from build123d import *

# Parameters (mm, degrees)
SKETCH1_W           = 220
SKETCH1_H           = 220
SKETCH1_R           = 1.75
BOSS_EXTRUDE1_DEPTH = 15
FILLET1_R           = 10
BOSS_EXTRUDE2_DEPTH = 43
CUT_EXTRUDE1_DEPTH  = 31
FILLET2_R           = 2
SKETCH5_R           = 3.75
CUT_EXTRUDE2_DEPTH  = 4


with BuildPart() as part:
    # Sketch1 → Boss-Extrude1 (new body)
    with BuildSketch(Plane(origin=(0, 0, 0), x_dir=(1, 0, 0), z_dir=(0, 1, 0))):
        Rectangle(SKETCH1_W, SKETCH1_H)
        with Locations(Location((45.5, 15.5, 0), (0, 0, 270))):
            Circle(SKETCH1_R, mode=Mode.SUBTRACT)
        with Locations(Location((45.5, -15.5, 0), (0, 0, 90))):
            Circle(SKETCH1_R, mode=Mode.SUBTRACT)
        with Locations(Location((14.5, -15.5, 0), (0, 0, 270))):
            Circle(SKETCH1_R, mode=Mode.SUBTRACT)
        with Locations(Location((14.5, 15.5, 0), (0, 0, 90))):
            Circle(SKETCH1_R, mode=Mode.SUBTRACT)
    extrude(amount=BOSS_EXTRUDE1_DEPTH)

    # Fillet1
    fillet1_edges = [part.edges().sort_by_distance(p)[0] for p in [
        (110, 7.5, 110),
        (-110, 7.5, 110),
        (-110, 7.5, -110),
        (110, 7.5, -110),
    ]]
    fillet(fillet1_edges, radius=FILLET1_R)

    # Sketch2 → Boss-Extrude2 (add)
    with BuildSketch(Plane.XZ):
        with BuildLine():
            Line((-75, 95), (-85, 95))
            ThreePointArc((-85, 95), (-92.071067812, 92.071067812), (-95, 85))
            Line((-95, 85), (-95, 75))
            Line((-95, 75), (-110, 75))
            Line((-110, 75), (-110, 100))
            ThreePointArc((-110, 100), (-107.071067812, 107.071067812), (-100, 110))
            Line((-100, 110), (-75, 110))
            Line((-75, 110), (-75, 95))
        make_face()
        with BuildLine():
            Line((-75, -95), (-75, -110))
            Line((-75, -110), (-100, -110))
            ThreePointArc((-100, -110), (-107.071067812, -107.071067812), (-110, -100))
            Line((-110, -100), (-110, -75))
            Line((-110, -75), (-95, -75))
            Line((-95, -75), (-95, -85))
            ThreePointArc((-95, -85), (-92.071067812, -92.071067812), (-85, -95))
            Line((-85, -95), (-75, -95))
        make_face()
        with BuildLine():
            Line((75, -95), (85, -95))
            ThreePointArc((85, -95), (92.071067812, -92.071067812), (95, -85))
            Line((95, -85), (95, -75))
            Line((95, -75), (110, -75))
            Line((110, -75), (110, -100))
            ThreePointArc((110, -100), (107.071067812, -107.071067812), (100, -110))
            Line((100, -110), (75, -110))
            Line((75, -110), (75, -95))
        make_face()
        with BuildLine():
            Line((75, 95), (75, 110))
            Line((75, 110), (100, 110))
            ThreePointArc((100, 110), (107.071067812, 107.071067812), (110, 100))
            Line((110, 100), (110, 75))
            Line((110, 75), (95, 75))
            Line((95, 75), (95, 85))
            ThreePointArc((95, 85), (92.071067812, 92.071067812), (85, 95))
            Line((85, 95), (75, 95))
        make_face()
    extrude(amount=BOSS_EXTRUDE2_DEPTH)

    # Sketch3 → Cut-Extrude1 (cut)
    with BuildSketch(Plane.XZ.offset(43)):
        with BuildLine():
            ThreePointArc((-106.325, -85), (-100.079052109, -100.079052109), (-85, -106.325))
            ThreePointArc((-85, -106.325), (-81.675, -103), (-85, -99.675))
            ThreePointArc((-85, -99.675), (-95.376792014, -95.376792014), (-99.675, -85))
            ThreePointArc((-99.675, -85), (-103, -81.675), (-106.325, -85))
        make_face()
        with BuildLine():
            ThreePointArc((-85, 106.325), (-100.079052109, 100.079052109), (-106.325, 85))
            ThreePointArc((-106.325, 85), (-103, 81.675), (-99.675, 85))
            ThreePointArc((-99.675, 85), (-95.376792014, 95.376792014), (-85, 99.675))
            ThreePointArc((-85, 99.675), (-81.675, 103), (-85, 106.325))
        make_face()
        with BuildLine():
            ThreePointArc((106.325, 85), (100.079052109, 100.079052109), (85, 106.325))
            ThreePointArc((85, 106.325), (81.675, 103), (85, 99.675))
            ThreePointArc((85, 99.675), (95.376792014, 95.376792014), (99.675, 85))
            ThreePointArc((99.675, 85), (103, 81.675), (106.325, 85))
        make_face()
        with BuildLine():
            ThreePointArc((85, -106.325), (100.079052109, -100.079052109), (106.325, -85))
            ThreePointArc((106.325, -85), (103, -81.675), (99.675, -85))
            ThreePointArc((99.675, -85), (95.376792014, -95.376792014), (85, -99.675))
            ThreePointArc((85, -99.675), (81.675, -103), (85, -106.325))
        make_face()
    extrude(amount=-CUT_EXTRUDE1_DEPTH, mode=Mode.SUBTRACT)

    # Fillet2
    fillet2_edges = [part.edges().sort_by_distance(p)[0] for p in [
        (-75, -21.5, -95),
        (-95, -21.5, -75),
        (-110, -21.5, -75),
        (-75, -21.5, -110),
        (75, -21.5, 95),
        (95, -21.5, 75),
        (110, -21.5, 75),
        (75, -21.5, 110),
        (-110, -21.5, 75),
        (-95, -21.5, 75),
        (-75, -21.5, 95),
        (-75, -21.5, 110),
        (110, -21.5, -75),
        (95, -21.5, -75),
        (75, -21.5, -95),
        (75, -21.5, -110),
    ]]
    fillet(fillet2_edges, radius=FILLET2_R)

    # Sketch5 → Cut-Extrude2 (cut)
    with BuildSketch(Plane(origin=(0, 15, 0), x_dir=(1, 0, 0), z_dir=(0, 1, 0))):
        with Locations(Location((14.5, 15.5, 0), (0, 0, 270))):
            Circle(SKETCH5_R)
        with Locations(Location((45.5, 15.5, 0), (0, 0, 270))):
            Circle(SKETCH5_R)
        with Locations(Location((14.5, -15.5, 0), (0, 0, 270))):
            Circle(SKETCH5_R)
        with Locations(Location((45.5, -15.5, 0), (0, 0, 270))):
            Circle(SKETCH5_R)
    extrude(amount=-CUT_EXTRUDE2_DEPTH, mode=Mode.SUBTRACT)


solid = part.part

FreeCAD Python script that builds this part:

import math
import FreeCAD as App
import Part
import Sketcher
Q = App.Units.Quantity


def edges_at(feature, points):
    """Names of the edges that pass closest to the given points."""
    edges = feature.Shape.Edges
    near = lambda p: min(range(len(edges)), key=lambda i: edges[i].distToShape(Part.Vertex(*p))[0])
    return sorted({f"Edge{near(p) + 1}" for p in points})

doc = App.newDocument("Part")
body = doc.addObject("PartDesign::Body", "Body")

# Sketch on XZ plane
sketch1 = doc.addObject("Sketcher::SketchObject", "Sketch")
body.addObject(sketch1)
sketch1.AttachmentSupport = (doc.XZ_Plane, [""])
sketch1.MapMode = "FlatFace"
sketch1.addGeometry(Part.LineSegment(App.Vector(-110, -110, 0), App.Vector(-110, 110, 0)), False)
sketch1.addGeometry(Part.LineSegment(App.Vector(-110, 110, 0), App.Vector(110, 110, 0)), False)
sketch1.addGeometry(Part.LineSegment(App.Vector(110, 110, 0), App.Vector(110, -110, 0)), False)
sketch1.addGeometry(Part.LineSegment(App.Vector(110, -110, 0), App.Vector(-110, -110, 0)), False)
sketch1.addGeometry(Part.Circle(App.Vector(14.5, 15.5, 0), App.Vector(0, 0, 1), 1.8), False)
sketch1.addGeometry(Part.Circle(App.Vector(45.5, 15.5, 0), App.Vector(0, 0, 1), 1.8), False)
sketch1.addGeometry(Part.Circle(App.Vector(14.5, -15.5, 0), App.Vector(0, 0, 1), 1.8), False)
sketch1.addGeometry(Part.Circle(App.Vector(45.5, -15.5, 0), App.Vector(0, 0, 1), 1.8), False)
sketch1.addConstraint(Sketcher.Constraint("Coincident", 0, 2, 1, 1))
sketch1.addConstraint(Sketcher.Constraint("Coincident", 1, 2, 2, 1))
sketch1.addConstraint(Sketcher.Constraint("Coincident", 2, 2, 3, 1))
sketch1.addConstraint(Sketcher.Constraint("Coincident", 3, 2, 0, 1))
sketch1.addConstraint(Sketcher.Constraint("Vertical", 0))
sketch1.addConstraint(Sketcher.Constraint("Horizontal", 1))
sketch1.addConstraint(Sketcher.Constraint("Vertical", 2))
sketch1.addConstraint(Sketcher.Constraint("Horizontal", 3))
sketch1.addConstraint(Sketcher.Constraint("Equal", 4, 5))
sketch1.addConstraint(Sketcher.Constraint("Equal", 5, 6))
sketch1.addConstraint(Sketcher.Constraint("Equal", 6, 7))
sketch1.addConstraint(Sketcher.Constraint("Symmetric", 0, 2, 2, 2, -1, 1))
sketch1.addConstraint(Sketcher.Constraint("Symmetric", 4, 3, 6, 3, -1))
sketch1.addConstraint(Sketcher.Constraint("Symmetric", 5, 3, 7, 3, -1))
sketch1.addConstraint(Sketcher.Constraint("Horizontal", 4, 3, 5, 3))
sketch1.addConstraint(Sketcher.Constraint("Equal", 3, 0))
sketch1.addConstraint(Sketcher.Constraint("Diameter", 4, Q("3.5 mm")))
sketch1.addConstraint(Sketcher.Constraint("DistanceX", 1, 1, 1, 2, Q("220 mm")))
sketch1.addConstraint(Sketcher.Constraint("DistanceX", 4, 3, 5, 3, Q("31 mm")))
sketch1.addConstraint(Sketcher.Constraint("DistanceY", 6, 3, 4, 3, Q("31 mm")))
sketch1.addConstraint(Sketcher.Constraint("DistanceX", -1, 1, 4, 3, Q("14.5 mm")))
pad1 = doc.addObject("PartDesign::Pad", "Pad")
body.addObject(pad1)
pad1.Profile = sketch1
pad1.Length = 15
pad1.Reversed = True
doc.recompute()

fillet = doc.addObject("PartDesign::Fillet", "Fillet")
body.addObject(fillet)
fillet.Base = (pad1, edges_at(pad1, [
    (110, 7.5, 110),
    (-110, 7.5, 110),
    (-110, 7.5, -110),
    (110, 7.5, -110),
]))
fillet.Radius = 10

# Sketch on XZ plane
sketch2 = doc.addObject("Sketcher::SketchObject", "Sketch001")
body.addObject(sketch2)
sketch2.AttachmentSupport = (doc.XZ_Plane, [""])
sketch2.MapMode = "FlatFace"
sketch2.addGeometry(Part.LineSegment(App.Vector(-85, 95, 0), App.Vector(-75, 95, 0)), False)
sketch2.addGeometry(Part.LineSegment(App.Vector(-75, 95, 0), App.Vector(-75, 110, 0)), False)
sketch2.addGeometry(Part.LineSegment(App.Vector(-75, 110, 0), App.Vector(-100, 110, 0)), False)
sketch2.addGeometry(Part.ArcOfCircle(Part.Circle(App.Vector(-100, 100, 0), App.Vector(0, 0, 1), 10), math.radians(90), math.radians(180)), False)
sketch2.addGeometry(Part.LineSegment(App.Vector(-110, 100, 0), App.Vector(-110, 75, 0)), False)
sketch2.addGeometry(Part.LineSegment(App.Vector(-110, 75, 0), App.Vector(-95, 75, 0)), False)
sketch2.addGeometry(Part.LineSegment(App.Vector(-95, 75, 0), App.Vector(-95, 85, 0)), False)
sketch2.addGeometry(Part.ArcOfCircle(Part.Circle(App.Vector(-85, 85, 0), App.Vector(0, 0, 1), 10), math.radians(90), math.radians(180)), False)
sketch2.addGeometry(Part.LineSegment(App.Vector(-75, -110, 0), App.Vector(-75, -95, 0)), False)
sketch2.addGeometry(Part.LineSegment(App.Vector(-75, -95, 0), App.Vector(-85, -95, 0)), False)
sketch2.addGeometry(Part.ArcOfCircle(Part.Circle(App.Vector(-85, -85, 0), App.Vector(0, 0, 1), 10), math.radians(180), math.radians(270)), False)
sketch2.addGeometry(Part.LineSegment(App.Vector(-95, -85, 0), App.Vector(-95, -75, 0)), False)
sketch2.addGeometry(Part.LineSegment(App.Vector(-95, -75, 0), App.Vector(-110, -75, 0)), False)
sketch2.addGeometry(Part.LineSegment(App.Vector(-110, -75, 0), App.Vector(-110, -100, 0)), False)
sketch2.addGeometry(Part.ArcOfCircle(Part.Circle(App.Vector(-100, -100, 0), App.Vector(0, 0, 1), 10), math.radians(180), math.radians(270)), False)
sketch2.addGeometry(Part.LineSegment(App.Vector(-100, -110, 0), App.Vector(-75, -110, 0)), False)
sketch2.addGeometry(Part.LineSegment(App.Vector(85, -95, 0), App.Vector(75, -95, 0)), False)
sketch2.addGeometry(Part.LineSegment(App.Vector(75, -95, 0), App.Vector(75, -110, 0)), False)
sketch2.addGeometry(Part.LineSegment(App.Vector(75, -110, 0), App.Vector(100, -110, 0)), False)
sketch2.addGeometry(Part.ArcOfCircle(Part.Circle(App.Vector(100, -100, 0), App.Vector(0, 0, 1), 10), math.radians(-90), math.radians(0)), False)
sketch2.addGeometry(Part.LineSegment(App.Vector(110, -100, 0), App.Vector(110, -75, 0)), False)
sketch2.addGeometry(Part.LineSegment(App.Vector(110, -75, 0), App.Vector(95, -75, 0)), False)
sketch2.addGeometry(Part.LineSegment(App.Vector(95, -75, 0), App.Vector(95, -85, 0)), False)
sketch2.addGeometry(Part.ArcOfCircle(Part.Circle(App.Vector(85, -85, 0), App.Vector(0, 0, 1), 10), math.radians(-90), math.radians(0)), False)
sketch2.addGeometry(Part.LineSegment(App.Vector(75, 110, 0), App.Vector(75, 95, 0)), False)
sketch2.addGeometry(Part.LineSegment(App.Vector(75, 95, 0), App.Vector(85, 95, 0)), False)
sketch2.addGeometry(Part.ArcOfCircle(Part.Circle(App.Vector(85, 85, 0), App.Vector(0, 0, 1), 10), math.radians(0), math.radians(90)), False)
sketch2.addGeometry(Part.LineSegment(App.Vector(95, 85, 0), App.Vector(95, 75, 0)), False)
sketch2.addGeometry(Part.LineSegment(App.Vector(95, 75, 0), App.Vector(110, 75, 0)), False)
sketch2.addGeometry(Part.LineSegment(App.Vector(110, 75, 0), App.Vector(110, 100, 0)), False)
sketch2.addGeometry(Part.ArcOfCircle(Part.Circle(App.Vector(100, 100, 0), App.Vector(0, 0, 1), 10), math.radians(0), math.radians(90)), False)
sketch2.addGeometry(Part.LineSegment(App.Vector(100, 110, 0), App.Vector(75, 110, 0)), False)
sketch2.addConstraint(Sketcher.Constraint("Coincident", 0, 2, 1, 1))
sketch2.addConstraint(Sketcher.Constraint("Coincident", 1, 2, 2, 1))
sketch2.addConstraint(Sketcher.Constraint("Tangent", 2, 2, 3, 1))
sketch2.addConstraint(Sketcher.Constraint("Tangent", 3, 2, 4, 1))
sketch2.addConstraint(Sketcher.Constraint("Coincident", 4, 2, 5, 1))
sketch2.addConstraint(Sketcher.Constraint("Coincident", 5, 2, 6, 1))
sketch2.addConstraint(Sketcher.Constraint("Tangent", 6, 2, 7, 2))
sketch2.addConstraint(Sketcher.Constraint("Tangent", 7, 1, 0, 1))
sketch2.addConstraint(Sketcher.Constraint("Coincident", 8, 2, 9, 1))
sketch2.addConstraint(Sketcher.Constraint("Tangent", 9, 2, 10, 2))
sketch2.addConstraint(Sketcher.Constraint("Tangent", 10, 1, 11, 1))
sketch2.addConstraint(Sketcher.Constraint("Coincident", 11, 2, 12, 1))
sketch2.addConstraint(Sketcher.Constraint("Coincident", 12, 2, 13, 1))
sketch2.addConstraint(Sketcher.Constraint("Tangent", 13, 2, 14, 1))
sketch2.addConstraint(Sketcher.Constraint("Tangent", 14, 2, 15, 1))
sketch2.addConstraint(Sketcher.Constraint("Coincident", 15, 2, 8, 1))
sketch2.addConstraint(Sketcher.Constraint("Coincident", 16, 2, 17, 1))
sketch2.addConstraint(Sketcher.Constraint("Coincident", 17, 2, 18, 1))
sketch2.addConstraint(Sketcher.Constraint("Tangent", 18, 2, 19, 1))
sketch2.addConstraint(Sketcher.Constraint("Tangent", 19, 2, 20, 1))
sketch2.addConstraint(Sketcher.Constraint("Coincident", 20, 2, 21, 1))
sketch2.addConstraint(Sketcher.Constraint("Coincident", 21, 2, 22, 1))
sketch2.addConstraint(Sketcher.Constraint("Tangent", 22, 2, 23, 2))
sketch2.addConstraint(Sketcher.Constraint("Tangent", 23, 1, 16, 1))
sketch2.addConstraint(Sketcher.Constraint("Coincident", 24, 2, 25, 1))
sketch2.addConstraint(Sketcher.Constraint("Tangent", 25, 2, 26, 2))
sketch2.addConstraint(Sketcher.Constraint("Tangent", 26, 1, 27, 1))
sketch2.addConstraint(Sketcher.Constraint("Coincident", 27, 2, 28, 1))
sketch2.addConstraint(Sketcher.Constraint("Coincident", 28, 2, 29, 1))
sketch2.addConstraint(Sketcher.Constraint("Tangent", 29, 2, 30, 1))
sketch2.addConstraint(Sketcher.Constraint("Tangent", 30, 2, 31, 1))
sketch2.addConstraint(Sketcher.Constraint("Coincident", 31, 2, 24, 1))
sketch2.addConstraint(Sketcher.Constraint("Horizontal", 0))
sketch2.addConstraint(Sketcher.Constraint("Vertical", 1))
sketch2.addConstraint(Sketcher.Constraint("Horizontal", 2))
sketch2.addConstraint(Sketcher.Constraint("Vertical", 4))
sketch2.addConstraint(Sketcher.Constraint("Horizontal", 5))
sketch2.addConstraint(Sketcher.Constraint("Vertical", 6))
sketch2.addConstraint(Sketcher.Constraint("Vertical", 8))
sketch2.addConstraint(Sketcher.Constraint("Horizontal", 9))
sketch2.addConstraint(Sketcher.Constraint("Vertical", 11))
sketch2.addConstraint(Sketcher.Constraint("Horizontal", 12))
sketch2.addConstraint(Sketcher.Constraint("Vertical", 13))
sketch2.addConstraint(Sketcher.Constraint("Horizontal", 15))
sketch2.addConstraint(Sketcher.Constraint("Horizontal", 16))
sketch2.addConstraint(Sketcher.Constraint("Vertical", 17))
sketch2.addConstraint(Sketcher.Constraint("Horizontal", 18))
sketch2.addConstraint(Sketcher.Constraint("Vertical", 20))
sketch2.addConstraint(Sketcher.Constraint("Horizontal", 21))
sketch2.addConstraint(Sketcher.Constraint("Vertical", 22))
sketch2.addConstraint(Sketcher.Constraint("Vertical", 24))
sketch2.addConstraint(Sketcher.Constraint("Horizontal", 25))
sketch2.addConstraint(Sketcher.Constraint("Vertical", 27))
sketch2.addConstraint(Sketcher.Constraint("Horizontal", 28))
sketch2.addConstraint(Sketcher.Constraint("Vertical", 29))
sketch2.addConstraint(Sketcher.Constraint("Horizontal", 31))
sketch2.addConstraint(Sketcher.Constraint("Equal", 3, 7))
sketch2.addConstraint(Sketcher.Constraint("Equal", 7, 10))
sketch2.addConstraint(Sketcher.Constraint("Equal", 10, 14))
sketch2.addConstraint(Sketcher.Constraint("Equal", 14, 19))
sketch2.addConstraint(Sketcher.Constraint("Equal", 19, 23))
sketch2.addConstraint(Sketcher.Constraint("Equal", 23, 26))
sketch2.addConstraint(Sketcher.Constraint("Equal", 26, 30))
sketch2.addConstraint(Sketcher.Constraint("Symmetric", 3, 3, 19, 3, -1, 1))
sketch2.addConstraint(Sketcher.Constraint("Symmetric", 7, 3, 23, 3, -1, 1))
sketch2.addConstraint(Sketcher.Constraint("Symmetric", 10, 3, 26, 3, -1, 1))
sketch2.addConstraint(Sketcher.Constraint("Symmetric", 14, 3, 30, 3, -1, 1))
sketch2.addConstraint(Sketcher.Constraint("Symmetric", 14, 3, 19, 3, -2))
sketch2.addConstraint(Sketcher.Constraint("Symmetric", 10, 3, 23, 3, -2))
sketch2.addConstraint(Sketcher.Constraint("Horizontal", 12, 2, 20, 2))
sketch2.addConstraint(Sketcher.Constraint("Horizontal", 5, 2, 27, 2))
sketch2.addConstraint(Sketcher.Constraint("Vertical", 1, 2, 8, 2))
sketch2.addConstraint(Sketcher.Constraint("Vertical", 17, 2, 24, 2))
sketch2.addConstraint(Sketcher.Constraint("Equal", 9, 16))
sketch2.addConstraint(Sketcher.Constraint("Equal", 28, 1))
sketch2.addConstraint(Sketcher.Constraint("Equal", 31, 4))
sketch2.addConstraint(Sketcher.Constraint("Equal", 6, 11))
sketch2.addConstraint(Sketcher.Constraint("Radius", 3, Q("10 mm")))
sketch2.addConstraint(Sketcher.Constraint("DistanceX", 0, 1, 0, 2, Q("10 mm")))
sketch2.addConstraint(Sketcher.Constraint("DistanceX", 2, 2, 2, 1, Q("25 mm")))
sketch2.addConstraint(Sketcher.Constraint("DistanceX", 3, 3, -1, 1, Q("100 mm")))
sketch2.addConstraint(Sketcher.Constraint("DistanceY", -1, 1, 3, 3, Q("100 mm")))
pad2 = doc.addObject("PartDesign::Pad", "Pad001")
body.addObject(pad2)
pad2.Profile = sketch2
pad2.Length = 43

# Sketch on XZ plane
sketch3 = doc.addObject("Sketcher::SketchObject", "Sketch002")
body.addObject(sketch3)
sketch3.AttachmentSupport = (doc.XZ_Plane, [""])
sketch3.MapMode = "FlatFace"
sketch3.AttachmentOffset = App.Placement(App.Vector(0, 0, 43), App.Rotation())
sketch3.addGeometry(Part.ArcOfCircle(Part.Circle(App.Vector(-85, -85, 0), App.Vector(0, 0, 1), 21.3), math.radians(180), math.radians(270)), False)
sketch3.addGeometry(Part.ArcOfCircle(Part.Circle(App.Vector(-85, -103, 0), App.Vector(0, 0, 1), 3.3), math.radians(-90), math.radians(90)), False)
sketch3.addGeometry(Part.ArcOfCircle(Part.Circle(App.Vector(-85, -85, 0), App.Vector(0, 0, 1), 14.7), math.radians(180), math.radians(270)), False)
sketch3.addGeometry(Part.ArcOfCircle(Part.Circle(App.Vector(-103, -85, 0), App.Vector(0, 0, 1), 3.3), math.radians(0), math.radians(180)), False)
sketch3.addGeometry(Part.ArcOfCircle(Part.Circle(App.Vector(-85, 85, 0), App.Vector(0, 0, 1), 21.3), math.radians(90), math.radians(180)), False)
sketch3.addGeometry(Part.ArcOfCircle(Part.Circle(App.Vector(-103, 85, 0), App.Vector(0, 0, 1), 3.3), math.radians(180), math.radians(360)), False)
sketch3.addGeometry(Part.ArcOfCircle(Part.Circle(App.Vector(-85, 85, 0), App.Vector(0, 0, 1), 14.7), math.radians(90), math.radians(180)), False)
sketch3.addGeometry(Part.ArcOfCircle(Part.Circle(App.Vector(-85, 103, 0), App.Vector(0, 0, 1), 3.3), math.radians(-90), math.radians(90)), False)
sketch3.addGeometry(Part.ArcOfCircle(Part.Circle(App.Vector(85, 85, 0), App.Vector(0, 0, 1), 21.3), math.radians(0), math.radians(90)), False)
sketch3.addGeometry(Part.ArcOfCircle(Part.Circle(App.Vector(85, 103, 0), App.Vector(0, 0, 1), 3.3), math.radians(90), math.radians(270)), False)
sketch3.addGeometry(Part.ArcOfCircle(Part.Circle(App.Vector(85, 85, 0), App.Vector(0, 0, 1), 14.7), math.radians(0), math.radians(90)), False)
sketch3.addGeometry(Part.ArcOfCircle(Part.Circle(App.Vector(103, 85, 0), App.Vector(0, 0, 1), 3.3), math.radians(180), math.radians(360)), False)
sketch3.addGeometry(Part.ArcOfCircle(Part.Circle(App.Vector(85, -85, 0), App.Vector(0, 0, 1), 21.3), math.radians(-90), math.radians(0)), False)
sketch3.addGeometry(Part.ArcOfCircle(Part.Circle(App.Vector(103, -85, 0), App.Vector(0, 0, 1), 3.3), math.radians(0), math.radians(180)), False)
sketch3.addGeometry(Part.ArcOfCircle(Part.Circle(App.Vector(85, -85, 0), App.Vector(0, 0, 1), 14.7), math.radians(-90), math.radians(0)), False)
sketch3.addGeometry(Part.ArcOfCircle(Part.Circle(App.Vector(85, -103, 0), App.Vector(0, 0, 1), 3.3), math.radians(90), math.radians(270)), False)
sketch3.addConstraint(Sketcher.Constraint("Tangent", 0, 2, 1, 1))
sketch3.addConstraint(Sketcher.Constraint("Tangent", 1, 2, 2, 2))
sketch3.addConstraint(Sketcher.Constraint("Tangent", 2, 1, 3, 1))
sketch3.addConstraint(Sketcher.Constraint("Tangent", 3, 2, 0, 1))
sketch3.addConstraint(Sketcher.Constraint("Tangent", 4, 2, 5, 1))
sketch3.addConstraint(Sketcher.Constraint("Tangent", 5, 2, 6, 2))
sketch3.addConstraint(Sketcher.Constraint("Tangent", 6, 1, 7, 1))
sketch3.addConstraint(Sketcher.Constraint("Tangent", 7, 2, 4, 1))
sketch3.addConstraint(Sketcher.Constraint("Tangent", 8, 2, 9, 1))
sketch3.addConstraint(Sketcher.Constraint("Tangent", 9, 2, 10, 2))
sketch3.addConstraint(Sketcher.Constraint("Tangent", 10, 1, 11, 1))
sketch3.addConstraint(Sketcher.Constraint("Tangent", 11, 2, 8, 1))
sketch3.addConstraint(Sketcher.Constraint("Tangent", 12, 2, 13, 1))
sketch3.addConstraint(Sketcher.Constraint("Tangent", 13, 2, 14, 2))
sketch3.addConstraint(Sketcher.Constraint("Tangent", 14, 1, 15, 1))
sketch3.addConstraint(Sketcher.Constraint("Tangent", 15, 2, 12, 1))
sketch3.addConstraint(Sketcher.Constraint("Coincident", 2, 3, 0, 3))
sketch3.addConstraint(Sketcher.Constraint("Coincident", 6, 3, 4, 3))
sketch3.addConstraint(Sketcher.Constraint("Coincident", 10, 3, 8, 3))
sketch3.addConstraint(Sketcher.Constraint("Coincident", 14, 3, 12, 3))
sketch3.addConstraint(Sketcher.Constraint("Equal", 0, 4))
sketch3.addConstraint(Sketcher.Constraint("Equal", 3, 5))
sketch3.addConstraint(Sketcher.Constraint("Equal", 4, 8))
sketch3.addConstraint(Sketcher.Constraint("Equal", 7, 9))
sketch3.addConstraint(Sketcher.Constraint("Equal", 8, 12))
sketch3.addConstraint(Sketcher.Constraint("Equal", 11, 13))
sketch3.addConstraint(Sketcher.Constraint("Symmetric", 0, 3, 8, 3, -1, 1))
sketch3.addConstraint(Sketcher.Constraint("Symmetric", 4, 3, 12, 3, -1, 1))
sketch3.addConstraint(Sketcher.Constraint("Symmetric", 4, 3, 8, 3, -2))
sketch3.addConstraint(Sketcher.Constraint("Horizontal", 2, 3, 3, 3))
sketch3.addConstraint(Sketcher.Constraint("Horizontal", 4, 3, 5, 3))
sketch3.addConstraint(Sketcher.Constraint("Horizontal", 10, 3, 11, 3))
sketch3.addConstraint(Sketcher.Constraint("Horizontal", 12, 3, 13, 3))
sketch3.addConstraint(Sketcher.Constraint("Vertical", 0, 3, 1, 3))
sketch3.addConstraint(Sketcher.Constraint("Vertical", 6, 3, 7, 3))
sketch3.addConstraint(Sketcher.Constraint("Vertical", 8, 3, 9, 3))
sketch3.addConstraint(Sketcher.Constraint("Vertical", 14, 3, 15, 3))
sketch3.addConstraint(Sketcher.Constraint("DistanceX", 0, 3, -1, 1, Q("85 mm")))
sketch3.addConstraint(Sketcher.Constraint("DistanceY", 0, 3, -1, 1, Q("85 mm")))
sketch3.addConstraint(Sketcher.Constraint("DistanceY", 1, 3, -1, 1, Q("103 mm")))
sketch3.addConstraint(Sketcher.Constraint("Radius", 0, Q("21.325 mm")))
pocket1 = doc.addObject("PartDesign::Pocket", "Pocket")
body.addObject(pocket1)
pocket1.Profile = sketch3
pocket1.Length = 31
doc.recompute()

fillet2 = doc.addObject("PartDesign::Fillet", "Fillet001")
body.addObject(fillet2)
fillet2.Base = (pocket1, edges_at(pocket1, [
    (-75, -21.5, -95),
    (-95, -21.5, -75),
    (-110, -21.5, -75),
    (-75, -21.5, -110),
    (75, -21.5, 95),
    (95, -21.5, 75),
    (110, -21.5, 75),
    (75, -21.5, 110),
    (-110, -21.5, 75),
    (-95, -21.5, 75),
    (-75, -21.5, 95),
    (-75, -21.5, 110),
    (110, -21.5, -75),
    (95, -21.5, -75),
    (75, -21.5, -95),
    (75, -21.5, -110),
]))
fillet2.Radius = 2

# Sketch on XZ plane
sketch4 = doc.addObject("Sketcher::SketchObject", "Sketch003")
body.addObject(sketch4)
sketch4.AttachmentSupport = (doc.XZ_Plane, [""])
sketch4.MapMode = "FlatFace"
sketch4.AttachmentOffset = App.Placement(App.Vector(0, 0, -15), App.Rotation())
sketch4.addGeometry(Part.Circle(App.Vector(14.5, -15.5, 0), App.Vector(0, 0, 1), 3.8), False)
sketch4.addGeometry(Part.Circle(App.Vector(45.5, -15.5, 0), App.Vector(0, 0, 1), 3.8), False)
sketch4.addGeometry(Part.Circle(App.Vector(14.5, 15.5, 0), App.Vector(0, 0, 1), 3.8), False)
sketch4.addGeometry(Part.Circle(App.Vector(45.5, 15.5, 0), App.Vector(0, 0, 1), 3.8), False)
sketch4.addConstraint(Sketcher.Constraint("Equal", 0, 1))
sketch4.addConstraint(Sketcher.Constraint("Equal", 1, 2))
sketch4.addConstraint(Sketcher.Constraint("Equal", 2, 3))
sketch4.addConstraint(Sketcher.Constraint("Symmetric", 0, 3, 2, 3, -1))
sketch4.addConstraint(Sketcher.Constraint("Symmetric", 1, 3, 3, 3, -1))
sketch4.addConstraint(Sketcher.Constraint("Horizontal", 0, 3, 1, 3))
sketch4.addConstraint(Sketcher.Constraint("Diameter", 0, Q("7.5 mm")))
sketch4.addConstraint(Sketcher.Constraint("DistanceX", 0, 3, 1, 3, Q("31 mm")))
sketch4.addConstraint(Sketcher.Constraint("DistanceY", 0, 3, 2, 3, Q("31 mm")))
sketch4.addConstraint(Sketcher.Constraint("DistanceX", -1, 1, 0, 3, Q("14.5 mm")))
pocket2 = doc.addObject("PartDesign::Pocket", "Pocket001")
body.addObject(pocket2)
pocket2.Profile = sketch4
pocket2.Length = 4
pocket2.Reversed = True

doc.recompute()
